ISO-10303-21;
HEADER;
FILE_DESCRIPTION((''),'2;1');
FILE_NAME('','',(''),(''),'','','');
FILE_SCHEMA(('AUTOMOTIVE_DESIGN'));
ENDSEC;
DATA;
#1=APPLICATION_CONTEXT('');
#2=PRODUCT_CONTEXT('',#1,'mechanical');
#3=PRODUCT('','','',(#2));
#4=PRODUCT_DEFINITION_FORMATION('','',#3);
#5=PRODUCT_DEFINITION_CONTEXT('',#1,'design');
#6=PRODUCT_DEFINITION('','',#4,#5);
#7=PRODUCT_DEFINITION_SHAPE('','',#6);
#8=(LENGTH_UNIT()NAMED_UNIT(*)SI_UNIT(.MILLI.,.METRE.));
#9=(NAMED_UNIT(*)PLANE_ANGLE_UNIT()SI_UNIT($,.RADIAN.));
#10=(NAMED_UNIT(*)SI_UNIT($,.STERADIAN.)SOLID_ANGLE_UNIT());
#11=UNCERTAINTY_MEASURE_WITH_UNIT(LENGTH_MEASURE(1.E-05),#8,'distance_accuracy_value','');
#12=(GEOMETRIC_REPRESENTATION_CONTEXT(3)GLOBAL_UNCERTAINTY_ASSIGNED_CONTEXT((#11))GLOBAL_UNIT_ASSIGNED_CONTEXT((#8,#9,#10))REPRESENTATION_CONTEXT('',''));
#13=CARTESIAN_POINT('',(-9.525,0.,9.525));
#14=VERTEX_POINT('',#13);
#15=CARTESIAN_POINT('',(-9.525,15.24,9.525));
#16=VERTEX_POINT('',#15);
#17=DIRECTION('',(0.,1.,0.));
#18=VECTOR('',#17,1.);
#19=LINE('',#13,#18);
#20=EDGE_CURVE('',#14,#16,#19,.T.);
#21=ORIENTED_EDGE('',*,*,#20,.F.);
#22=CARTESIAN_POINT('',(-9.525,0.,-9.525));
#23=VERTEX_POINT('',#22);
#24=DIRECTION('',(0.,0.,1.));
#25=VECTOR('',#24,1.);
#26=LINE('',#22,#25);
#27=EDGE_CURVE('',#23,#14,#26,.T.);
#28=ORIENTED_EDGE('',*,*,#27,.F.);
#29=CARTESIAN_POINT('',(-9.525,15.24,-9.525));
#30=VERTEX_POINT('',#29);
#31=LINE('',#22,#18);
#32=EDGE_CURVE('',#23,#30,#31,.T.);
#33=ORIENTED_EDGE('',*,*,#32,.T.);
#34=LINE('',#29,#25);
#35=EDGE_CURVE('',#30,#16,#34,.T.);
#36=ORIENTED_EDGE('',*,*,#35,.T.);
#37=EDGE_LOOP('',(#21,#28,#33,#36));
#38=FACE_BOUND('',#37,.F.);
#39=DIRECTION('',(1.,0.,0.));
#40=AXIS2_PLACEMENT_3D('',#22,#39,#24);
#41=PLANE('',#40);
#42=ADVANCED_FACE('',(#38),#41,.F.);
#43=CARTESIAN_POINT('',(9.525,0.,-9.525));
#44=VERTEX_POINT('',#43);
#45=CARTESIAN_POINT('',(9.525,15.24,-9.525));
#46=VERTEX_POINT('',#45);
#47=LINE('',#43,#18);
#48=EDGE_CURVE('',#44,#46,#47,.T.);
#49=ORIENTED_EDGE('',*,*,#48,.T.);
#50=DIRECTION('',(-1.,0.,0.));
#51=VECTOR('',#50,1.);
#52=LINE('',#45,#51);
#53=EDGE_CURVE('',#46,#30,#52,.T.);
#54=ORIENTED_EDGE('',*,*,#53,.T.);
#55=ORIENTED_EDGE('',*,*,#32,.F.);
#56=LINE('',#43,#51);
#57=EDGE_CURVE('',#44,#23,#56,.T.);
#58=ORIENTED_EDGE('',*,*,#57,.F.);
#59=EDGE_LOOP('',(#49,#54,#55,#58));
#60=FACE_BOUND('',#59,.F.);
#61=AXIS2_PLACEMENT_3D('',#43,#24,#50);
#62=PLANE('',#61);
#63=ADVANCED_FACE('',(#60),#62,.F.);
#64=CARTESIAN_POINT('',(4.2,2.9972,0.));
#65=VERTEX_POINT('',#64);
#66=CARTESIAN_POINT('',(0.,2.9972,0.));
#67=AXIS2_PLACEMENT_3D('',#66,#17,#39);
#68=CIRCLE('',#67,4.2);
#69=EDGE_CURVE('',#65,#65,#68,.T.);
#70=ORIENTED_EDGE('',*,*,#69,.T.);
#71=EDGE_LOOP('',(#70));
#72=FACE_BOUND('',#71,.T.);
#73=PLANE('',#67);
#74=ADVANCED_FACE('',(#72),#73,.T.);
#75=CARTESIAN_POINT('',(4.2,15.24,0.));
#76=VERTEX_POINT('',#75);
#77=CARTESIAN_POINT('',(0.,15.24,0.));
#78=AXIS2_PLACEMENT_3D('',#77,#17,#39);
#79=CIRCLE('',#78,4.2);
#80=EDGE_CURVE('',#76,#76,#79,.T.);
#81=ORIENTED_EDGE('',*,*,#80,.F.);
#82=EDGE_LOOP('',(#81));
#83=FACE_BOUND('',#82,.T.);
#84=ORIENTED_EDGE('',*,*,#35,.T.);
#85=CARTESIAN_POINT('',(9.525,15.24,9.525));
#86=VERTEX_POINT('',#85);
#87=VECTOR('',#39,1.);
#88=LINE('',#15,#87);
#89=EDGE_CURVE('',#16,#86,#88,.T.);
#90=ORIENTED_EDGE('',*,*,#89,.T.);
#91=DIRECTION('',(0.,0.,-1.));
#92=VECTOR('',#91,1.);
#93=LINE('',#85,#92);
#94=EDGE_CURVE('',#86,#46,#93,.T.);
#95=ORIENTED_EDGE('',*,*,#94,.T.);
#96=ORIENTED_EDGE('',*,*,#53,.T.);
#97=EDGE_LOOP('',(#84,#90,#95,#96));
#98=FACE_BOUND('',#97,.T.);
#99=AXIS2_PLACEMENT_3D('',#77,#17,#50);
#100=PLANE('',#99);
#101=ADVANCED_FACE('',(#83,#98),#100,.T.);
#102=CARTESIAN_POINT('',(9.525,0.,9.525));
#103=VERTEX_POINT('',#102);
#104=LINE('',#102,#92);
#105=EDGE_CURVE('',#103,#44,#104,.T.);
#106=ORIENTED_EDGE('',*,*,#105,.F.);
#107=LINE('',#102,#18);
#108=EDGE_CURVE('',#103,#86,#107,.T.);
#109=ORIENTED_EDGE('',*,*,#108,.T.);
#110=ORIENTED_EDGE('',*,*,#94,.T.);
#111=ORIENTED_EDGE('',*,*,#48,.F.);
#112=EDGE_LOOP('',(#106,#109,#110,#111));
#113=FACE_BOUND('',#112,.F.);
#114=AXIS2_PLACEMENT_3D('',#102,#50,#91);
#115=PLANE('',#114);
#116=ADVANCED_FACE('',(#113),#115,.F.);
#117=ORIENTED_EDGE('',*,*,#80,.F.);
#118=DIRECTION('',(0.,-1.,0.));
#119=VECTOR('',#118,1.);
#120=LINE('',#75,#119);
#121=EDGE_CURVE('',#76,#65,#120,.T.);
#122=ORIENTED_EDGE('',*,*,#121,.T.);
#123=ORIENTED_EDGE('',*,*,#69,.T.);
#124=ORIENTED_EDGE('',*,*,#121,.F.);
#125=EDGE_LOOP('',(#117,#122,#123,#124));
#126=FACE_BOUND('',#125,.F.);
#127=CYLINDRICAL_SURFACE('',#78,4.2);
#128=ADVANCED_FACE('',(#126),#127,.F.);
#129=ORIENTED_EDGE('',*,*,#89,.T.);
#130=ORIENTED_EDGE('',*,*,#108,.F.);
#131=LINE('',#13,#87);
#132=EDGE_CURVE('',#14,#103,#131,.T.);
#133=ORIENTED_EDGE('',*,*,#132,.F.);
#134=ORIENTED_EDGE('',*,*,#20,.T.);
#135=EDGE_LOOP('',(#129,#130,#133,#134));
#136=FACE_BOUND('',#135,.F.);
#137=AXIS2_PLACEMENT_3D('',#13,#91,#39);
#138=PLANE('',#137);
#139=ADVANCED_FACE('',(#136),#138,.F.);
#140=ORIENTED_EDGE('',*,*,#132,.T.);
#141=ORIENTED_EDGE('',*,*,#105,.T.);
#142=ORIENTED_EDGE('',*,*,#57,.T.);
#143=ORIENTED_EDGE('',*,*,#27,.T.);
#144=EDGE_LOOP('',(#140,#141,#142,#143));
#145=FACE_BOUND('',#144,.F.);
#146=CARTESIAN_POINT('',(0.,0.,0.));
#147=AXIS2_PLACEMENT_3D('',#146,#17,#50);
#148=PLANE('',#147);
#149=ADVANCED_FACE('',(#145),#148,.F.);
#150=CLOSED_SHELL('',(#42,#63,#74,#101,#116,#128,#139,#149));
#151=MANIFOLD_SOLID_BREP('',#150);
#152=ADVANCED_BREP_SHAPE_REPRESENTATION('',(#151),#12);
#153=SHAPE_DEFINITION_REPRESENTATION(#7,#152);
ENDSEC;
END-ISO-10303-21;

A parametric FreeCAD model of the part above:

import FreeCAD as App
import Part
import Sketcher

V = App.Vector
Q = App.Units.Quantity

doc = App.newDocument("Part")
body = doc.addObject("PartDesign::Body", "Body")

# Sketch on XZ plane
sketch1 = doc.addObject("Sketcher::SketchObject", "Sketch")
body.addObject(sketch1)
sketch1.AttachmentSupport = (doc.XZ_Plane, [""])
sketch1.MapMode = "FlatFace"
sketch1.addGeometry(Part.LineSegment(V(-9.525, -9.525, 0), V(-9.525, 9.525, 0)), False)
sketch1.addGeometry(Part.LineSegment(V(-9.525, 9.525, 0), V(9.525, 9.525, 0)), False)
sketch1.addGeometry(Part.LineSegment(V(9.525, 9.525, 0), V(9.525, -9.525, 0)), False)
sketch1.addGeometry(Part.LineSegment(V(9.525, -9.525, 0), V(-9.525, -9.525, 0)), False)
sketch1.addConstraint(Sketcher.Constraint("Coincident", 0, 2, 1, 1))
sketch1.addConstraint(Sketcher.Constraint("Coincident", 1, 2, 2, 1))
sketch1.addConstraint(Sketcher.Constraint("Coincident", 2, 2, 3, 1))
sketch1.addConstraint(Sketcher.Constraint("Coincident", 3, 2, 0, 1))
sketch1.addConstraint(Sketcher.Constraint("Vertical", 0))
sketch1.addConstraint(Sketcher.Constraint("Horizontal", 1))
sketch1.addConstraint(Sketcher.Constraint("Vertical", 2))
sketch1.addConstraint(Sketcher.Constraint("Horizontal", 3))
sketch1.addConstraint(Sketcher.Constraint("Symmetric", 0, 2, 2, 2, -1, 1))
sketch1.addConstraint(Sketcher.Constraint("Equal", 3, 0))
sketch1.addConstraint(Sketcher.Constraint("DistanceX", 1, 1, 1, 2, Q("0.75 in")))
pad1 = doc.addObject("PartDesign::Pad", "Pad")
body.addObject(pad1)
pad1.Profile = sketch1
pad1.Length = Q("0.6 in")
pad1.Reversed = True

# Sketch on XZ plane
sketch2 = doc.addObject("Sketcher::SketchObject", "Sketch001")
body.addObject(sketch2)
sketch2.AttachmentSupport = (doc.XZ_Plane, [""])
sketch2.MapMode = "FlatFace"
sketch2.AttachmentOffset = App.Placement(V(0, 0, -0.6 * 25.4), App.Rotation())
sketch2.addGeometry(Part.Circle(V(0, 0, 0), V(0, 0, 1), 4.2), False)
sketch2.addConstraint(Sketcher.Constraint("Coincident", 0, 3, -1, 1))
sketch2.addConstraint(Sketcher.Constraint("Diameter", 0, Q("0.3307 in")))
pocket1 = doc.addObject("PartDesign::Pocket", "Pocket")
body.addObject(pocket1)
pocket1.Profile = sketch2
pocket1.Length = Q("0.482 in")
pocket1.Reversed = True

doc.recompute()
